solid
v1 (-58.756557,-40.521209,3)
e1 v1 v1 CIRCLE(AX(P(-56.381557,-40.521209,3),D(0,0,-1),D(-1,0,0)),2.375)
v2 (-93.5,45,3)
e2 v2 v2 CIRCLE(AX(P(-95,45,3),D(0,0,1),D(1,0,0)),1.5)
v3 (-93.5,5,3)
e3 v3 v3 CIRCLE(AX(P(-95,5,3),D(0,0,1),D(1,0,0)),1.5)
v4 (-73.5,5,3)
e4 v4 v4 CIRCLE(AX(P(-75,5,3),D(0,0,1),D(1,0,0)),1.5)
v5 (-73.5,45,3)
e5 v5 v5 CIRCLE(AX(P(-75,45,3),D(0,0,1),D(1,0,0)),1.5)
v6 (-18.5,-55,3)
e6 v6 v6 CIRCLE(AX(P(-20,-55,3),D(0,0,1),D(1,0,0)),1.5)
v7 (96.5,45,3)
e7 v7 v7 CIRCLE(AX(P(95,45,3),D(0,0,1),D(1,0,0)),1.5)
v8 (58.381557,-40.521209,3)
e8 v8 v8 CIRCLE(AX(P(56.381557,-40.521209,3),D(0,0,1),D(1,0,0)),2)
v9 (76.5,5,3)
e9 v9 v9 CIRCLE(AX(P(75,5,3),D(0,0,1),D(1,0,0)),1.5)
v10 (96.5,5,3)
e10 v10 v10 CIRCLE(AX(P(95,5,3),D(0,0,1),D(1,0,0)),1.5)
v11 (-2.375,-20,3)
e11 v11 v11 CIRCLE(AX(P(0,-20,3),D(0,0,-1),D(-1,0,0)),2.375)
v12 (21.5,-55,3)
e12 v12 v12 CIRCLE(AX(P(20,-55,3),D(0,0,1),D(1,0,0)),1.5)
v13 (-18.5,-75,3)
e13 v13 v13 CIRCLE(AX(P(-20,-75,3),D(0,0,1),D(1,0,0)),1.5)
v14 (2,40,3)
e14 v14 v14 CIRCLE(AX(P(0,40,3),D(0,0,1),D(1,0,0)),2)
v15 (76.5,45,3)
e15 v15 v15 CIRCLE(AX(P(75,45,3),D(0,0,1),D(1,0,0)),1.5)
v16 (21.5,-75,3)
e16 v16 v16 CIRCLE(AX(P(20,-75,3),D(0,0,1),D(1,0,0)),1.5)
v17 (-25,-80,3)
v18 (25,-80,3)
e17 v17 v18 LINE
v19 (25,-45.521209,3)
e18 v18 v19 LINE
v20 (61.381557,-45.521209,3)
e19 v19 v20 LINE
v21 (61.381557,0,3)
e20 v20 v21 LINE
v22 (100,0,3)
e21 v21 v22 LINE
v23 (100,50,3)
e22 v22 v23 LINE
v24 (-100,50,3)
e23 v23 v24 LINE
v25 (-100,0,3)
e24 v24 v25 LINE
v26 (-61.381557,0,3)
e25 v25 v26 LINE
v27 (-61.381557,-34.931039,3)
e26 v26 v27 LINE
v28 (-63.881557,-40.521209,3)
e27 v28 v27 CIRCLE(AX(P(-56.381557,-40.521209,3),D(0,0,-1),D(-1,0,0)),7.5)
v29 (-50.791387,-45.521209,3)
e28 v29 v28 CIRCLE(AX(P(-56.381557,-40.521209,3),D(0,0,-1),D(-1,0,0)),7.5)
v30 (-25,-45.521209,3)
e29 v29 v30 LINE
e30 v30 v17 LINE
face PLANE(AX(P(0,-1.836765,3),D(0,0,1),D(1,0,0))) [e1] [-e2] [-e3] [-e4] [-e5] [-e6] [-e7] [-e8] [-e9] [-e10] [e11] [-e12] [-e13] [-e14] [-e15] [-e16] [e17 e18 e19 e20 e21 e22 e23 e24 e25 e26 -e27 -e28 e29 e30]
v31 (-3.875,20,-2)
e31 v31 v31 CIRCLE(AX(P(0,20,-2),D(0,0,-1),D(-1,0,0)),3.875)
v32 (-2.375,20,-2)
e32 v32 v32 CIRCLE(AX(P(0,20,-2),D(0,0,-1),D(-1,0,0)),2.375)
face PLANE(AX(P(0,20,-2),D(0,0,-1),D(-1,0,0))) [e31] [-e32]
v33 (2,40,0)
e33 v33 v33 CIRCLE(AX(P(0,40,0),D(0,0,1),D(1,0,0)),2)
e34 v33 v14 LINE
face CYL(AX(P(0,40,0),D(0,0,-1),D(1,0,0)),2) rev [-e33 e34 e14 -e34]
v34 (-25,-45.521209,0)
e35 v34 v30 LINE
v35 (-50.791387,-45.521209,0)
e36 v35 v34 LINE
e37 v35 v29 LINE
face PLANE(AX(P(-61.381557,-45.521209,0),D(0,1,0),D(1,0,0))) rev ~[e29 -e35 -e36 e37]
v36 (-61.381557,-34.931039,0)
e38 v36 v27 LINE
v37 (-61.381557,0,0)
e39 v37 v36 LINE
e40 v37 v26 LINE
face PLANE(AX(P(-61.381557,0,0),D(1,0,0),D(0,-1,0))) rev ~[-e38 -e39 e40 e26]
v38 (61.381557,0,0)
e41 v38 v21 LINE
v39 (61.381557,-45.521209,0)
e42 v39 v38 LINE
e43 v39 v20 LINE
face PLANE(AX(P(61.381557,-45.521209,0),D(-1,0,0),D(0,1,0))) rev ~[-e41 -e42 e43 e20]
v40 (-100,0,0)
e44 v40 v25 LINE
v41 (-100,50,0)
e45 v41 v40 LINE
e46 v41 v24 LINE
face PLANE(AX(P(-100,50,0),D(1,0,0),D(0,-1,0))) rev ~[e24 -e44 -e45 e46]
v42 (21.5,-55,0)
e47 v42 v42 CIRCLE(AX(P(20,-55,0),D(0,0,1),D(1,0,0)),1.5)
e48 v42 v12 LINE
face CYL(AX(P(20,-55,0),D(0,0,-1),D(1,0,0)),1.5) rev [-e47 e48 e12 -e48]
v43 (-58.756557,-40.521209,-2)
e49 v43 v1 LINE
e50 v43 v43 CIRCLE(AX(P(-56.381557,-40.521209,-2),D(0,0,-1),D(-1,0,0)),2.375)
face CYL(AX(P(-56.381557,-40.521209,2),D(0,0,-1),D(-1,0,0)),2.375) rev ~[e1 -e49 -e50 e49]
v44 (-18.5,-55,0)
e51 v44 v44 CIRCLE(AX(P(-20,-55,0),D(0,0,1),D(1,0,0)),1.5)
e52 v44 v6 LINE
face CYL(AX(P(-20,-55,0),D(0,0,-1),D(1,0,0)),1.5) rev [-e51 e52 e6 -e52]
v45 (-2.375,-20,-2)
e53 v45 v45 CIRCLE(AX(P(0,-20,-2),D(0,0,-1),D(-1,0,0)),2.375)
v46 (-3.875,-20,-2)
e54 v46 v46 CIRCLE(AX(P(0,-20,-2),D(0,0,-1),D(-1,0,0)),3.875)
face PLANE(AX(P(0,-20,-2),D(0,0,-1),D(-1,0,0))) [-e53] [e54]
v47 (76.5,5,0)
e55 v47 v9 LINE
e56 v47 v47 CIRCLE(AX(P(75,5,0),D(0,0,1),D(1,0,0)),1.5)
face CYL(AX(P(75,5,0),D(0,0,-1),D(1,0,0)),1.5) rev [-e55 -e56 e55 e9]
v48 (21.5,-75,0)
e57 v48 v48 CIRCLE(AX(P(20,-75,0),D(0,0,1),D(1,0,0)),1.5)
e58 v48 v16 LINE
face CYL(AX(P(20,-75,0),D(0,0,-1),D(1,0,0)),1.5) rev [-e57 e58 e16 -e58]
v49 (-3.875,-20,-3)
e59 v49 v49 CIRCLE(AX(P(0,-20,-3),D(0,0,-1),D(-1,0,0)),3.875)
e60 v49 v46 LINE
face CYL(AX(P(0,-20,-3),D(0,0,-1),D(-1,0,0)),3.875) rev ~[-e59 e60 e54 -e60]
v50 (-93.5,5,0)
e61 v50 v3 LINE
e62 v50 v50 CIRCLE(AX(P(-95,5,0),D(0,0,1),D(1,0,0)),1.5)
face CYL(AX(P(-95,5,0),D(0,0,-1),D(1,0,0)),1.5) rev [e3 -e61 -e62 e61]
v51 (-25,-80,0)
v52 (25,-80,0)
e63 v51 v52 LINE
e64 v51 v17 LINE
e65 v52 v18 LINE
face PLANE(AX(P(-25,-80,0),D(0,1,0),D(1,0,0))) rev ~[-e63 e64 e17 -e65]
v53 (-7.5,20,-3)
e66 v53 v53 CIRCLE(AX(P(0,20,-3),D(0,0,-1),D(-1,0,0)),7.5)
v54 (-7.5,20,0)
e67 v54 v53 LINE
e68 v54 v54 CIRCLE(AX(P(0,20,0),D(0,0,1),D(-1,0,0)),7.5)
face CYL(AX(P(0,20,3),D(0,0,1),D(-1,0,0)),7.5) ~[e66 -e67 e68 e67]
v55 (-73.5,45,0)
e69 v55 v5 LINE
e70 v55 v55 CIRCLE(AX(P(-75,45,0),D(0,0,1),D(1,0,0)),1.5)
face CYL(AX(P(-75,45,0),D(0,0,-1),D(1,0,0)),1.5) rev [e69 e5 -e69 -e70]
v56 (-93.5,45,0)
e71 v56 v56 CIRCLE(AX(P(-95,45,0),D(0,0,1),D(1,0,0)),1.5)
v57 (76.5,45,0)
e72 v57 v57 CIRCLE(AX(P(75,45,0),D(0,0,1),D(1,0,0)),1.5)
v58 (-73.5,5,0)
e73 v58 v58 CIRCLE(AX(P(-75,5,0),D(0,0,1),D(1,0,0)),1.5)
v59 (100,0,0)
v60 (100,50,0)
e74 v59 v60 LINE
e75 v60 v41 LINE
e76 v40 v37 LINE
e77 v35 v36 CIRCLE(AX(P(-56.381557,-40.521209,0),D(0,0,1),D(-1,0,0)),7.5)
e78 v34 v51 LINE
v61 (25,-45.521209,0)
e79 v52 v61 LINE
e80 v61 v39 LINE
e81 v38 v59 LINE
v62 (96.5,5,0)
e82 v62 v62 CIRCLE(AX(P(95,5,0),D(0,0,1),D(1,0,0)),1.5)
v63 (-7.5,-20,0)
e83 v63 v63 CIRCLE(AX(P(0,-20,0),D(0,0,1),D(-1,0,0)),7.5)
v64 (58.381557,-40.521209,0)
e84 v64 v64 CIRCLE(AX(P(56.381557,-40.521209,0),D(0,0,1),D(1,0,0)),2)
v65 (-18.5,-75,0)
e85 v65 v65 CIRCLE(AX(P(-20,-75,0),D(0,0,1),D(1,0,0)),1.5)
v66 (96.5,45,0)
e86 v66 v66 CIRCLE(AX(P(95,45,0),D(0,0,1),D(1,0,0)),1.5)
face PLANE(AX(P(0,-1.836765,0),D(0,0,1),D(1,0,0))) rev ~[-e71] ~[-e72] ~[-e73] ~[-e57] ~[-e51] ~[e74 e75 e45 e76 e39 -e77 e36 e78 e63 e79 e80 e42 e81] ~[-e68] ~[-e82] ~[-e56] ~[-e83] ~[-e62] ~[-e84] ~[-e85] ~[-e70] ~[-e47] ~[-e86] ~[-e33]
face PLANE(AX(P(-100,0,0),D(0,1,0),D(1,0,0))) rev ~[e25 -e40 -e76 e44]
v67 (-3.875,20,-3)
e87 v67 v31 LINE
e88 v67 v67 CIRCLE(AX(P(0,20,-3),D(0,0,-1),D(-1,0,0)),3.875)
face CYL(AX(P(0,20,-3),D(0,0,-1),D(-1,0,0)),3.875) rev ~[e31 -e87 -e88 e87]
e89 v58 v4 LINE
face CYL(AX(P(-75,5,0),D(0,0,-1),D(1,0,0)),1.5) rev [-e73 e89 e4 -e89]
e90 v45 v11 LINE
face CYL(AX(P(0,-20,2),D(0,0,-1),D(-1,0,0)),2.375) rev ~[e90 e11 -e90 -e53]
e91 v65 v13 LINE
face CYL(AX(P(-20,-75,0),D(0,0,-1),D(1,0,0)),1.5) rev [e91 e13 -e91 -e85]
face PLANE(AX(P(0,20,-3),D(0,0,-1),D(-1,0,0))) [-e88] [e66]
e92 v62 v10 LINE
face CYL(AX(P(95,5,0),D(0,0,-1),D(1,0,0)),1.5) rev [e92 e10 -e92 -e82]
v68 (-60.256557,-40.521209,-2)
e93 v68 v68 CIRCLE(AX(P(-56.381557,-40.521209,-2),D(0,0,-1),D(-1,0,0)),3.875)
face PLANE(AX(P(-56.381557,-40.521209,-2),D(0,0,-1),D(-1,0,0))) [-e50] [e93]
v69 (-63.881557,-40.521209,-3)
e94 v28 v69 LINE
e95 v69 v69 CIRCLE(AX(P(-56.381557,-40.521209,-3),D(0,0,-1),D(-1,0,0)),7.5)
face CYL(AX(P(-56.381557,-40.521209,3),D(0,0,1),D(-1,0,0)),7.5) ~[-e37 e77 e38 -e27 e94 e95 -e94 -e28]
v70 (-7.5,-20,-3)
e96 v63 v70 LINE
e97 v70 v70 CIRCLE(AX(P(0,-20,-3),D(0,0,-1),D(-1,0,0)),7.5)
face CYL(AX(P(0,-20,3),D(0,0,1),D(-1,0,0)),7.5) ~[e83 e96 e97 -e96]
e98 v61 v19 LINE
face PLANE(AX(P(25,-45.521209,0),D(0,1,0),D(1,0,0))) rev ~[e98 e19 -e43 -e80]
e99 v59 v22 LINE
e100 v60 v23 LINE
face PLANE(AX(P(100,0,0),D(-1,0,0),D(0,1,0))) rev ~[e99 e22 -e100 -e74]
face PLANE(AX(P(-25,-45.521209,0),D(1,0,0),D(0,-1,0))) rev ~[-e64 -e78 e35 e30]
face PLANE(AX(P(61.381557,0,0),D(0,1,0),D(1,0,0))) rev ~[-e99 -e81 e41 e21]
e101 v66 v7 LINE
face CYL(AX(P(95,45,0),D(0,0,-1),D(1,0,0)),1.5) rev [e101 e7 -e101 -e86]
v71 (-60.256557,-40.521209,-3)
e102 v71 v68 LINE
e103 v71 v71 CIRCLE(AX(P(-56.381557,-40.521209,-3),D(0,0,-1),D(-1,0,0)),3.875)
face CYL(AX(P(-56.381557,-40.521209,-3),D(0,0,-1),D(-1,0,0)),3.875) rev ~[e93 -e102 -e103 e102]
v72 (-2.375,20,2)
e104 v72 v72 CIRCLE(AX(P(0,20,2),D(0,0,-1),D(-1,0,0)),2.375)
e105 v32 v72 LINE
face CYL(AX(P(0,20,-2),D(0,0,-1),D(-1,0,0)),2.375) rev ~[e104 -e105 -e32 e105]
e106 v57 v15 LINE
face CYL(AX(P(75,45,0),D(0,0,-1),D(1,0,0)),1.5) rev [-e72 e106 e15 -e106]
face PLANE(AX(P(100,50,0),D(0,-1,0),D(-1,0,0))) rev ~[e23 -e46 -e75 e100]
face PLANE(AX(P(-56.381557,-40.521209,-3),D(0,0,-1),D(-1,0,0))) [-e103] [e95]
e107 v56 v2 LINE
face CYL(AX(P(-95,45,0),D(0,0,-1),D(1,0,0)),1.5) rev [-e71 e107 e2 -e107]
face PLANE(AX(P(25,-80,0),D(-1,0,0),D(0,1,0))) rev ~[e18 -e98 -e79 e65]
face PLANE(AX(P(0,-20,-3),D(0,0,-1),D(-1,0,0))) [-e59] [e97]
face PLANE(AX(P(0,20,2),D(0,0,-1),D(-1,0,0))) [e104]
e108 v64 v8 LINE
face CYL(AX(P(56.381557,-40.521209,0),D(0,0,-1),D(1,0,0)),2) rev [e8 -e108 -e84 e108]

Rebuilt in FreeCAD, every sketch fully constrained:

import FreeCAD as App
import Part
import Sketcher
Q = App.Units.Quantity

doc = App.newDocument("Part")
body = doc.addObject("PartDesign::Body", "Body")

sketch1 = doc.addObject("Sketcher::SketchObject", "Sketch")
body.addObject(sketch1)
sketch1.AttachmentSupport = (doc.XY_Plane, [""])
sketch1.MapMode = "FlatFace"
sketch1.addGeometry([
    Part.LineSegment(App.Vector(-100, 50, 0), App.Vector(-100, 0, 0)),
    Part.LineSegment(App.Vector(-100, 0, 0), App.Vector(-61.4, 0, 0)),
    Part.LineSegment(App.Vector(-61.4, 0, 0), App.Vector(-61.4, -45.5, 0)),
    Part.LineSegment(App.Vector(-61.4, -45.5, 0), App.Vector(-25, -45.5, 0)),
    Part.LineSegment(App.Vector(-25, -45.5, 0), App.Vector(-25, -80, 0)),
    Part.LineSegment(App.Vector(-25, -80, 0), App.Vector(25, -80, 0)),
    Part.LineSegment(App.Vector(25, -80, 0), App.Vector(25, -45.5, 0)),
    Part.LineSegment(App.Vector(25, -45.5, 0), App.Vector(61.4, -45.5, 0)),
    Part.LineSegment(App.Vector(61.4, -45.5, 0), App.Vector(61.4, 0, 0)),
    Part.LineSegment(App.Vector(61.4, 0, 0), App.Vector(100, 0, 0)),
    Part.LineSegment(App.Vector(100, 0, 0), App.Vector(100, 50, 0)),
    Part.LineSegment(App.Vector(100, 50, 0), App.Vector(-100, 50, 0)),
    Part.Circle(App.Vector(-20, -75, 0), App.Vector(0, 0, 1), 1.5),
    Part.Circle(App.Vector(-20, -55, 0), App.Vector(0, 0, 1), 1.5),
    Part.Circle(App.Vector(-56.4, -40.5, 0), App.Vector(0, 0, 1), 2),
    Part.Circle(App.Vector(20, -75, 0), App.Vector(0, 0, 1), 1.5),
    Part.Circle(App.Vector(20, -55, 0), App.Vector(0, 0, 1), 1.5),
    Part.Circle(App.Vector(0, -20, 0), App.Vector(0, 0, 1), 2),
    Part.Circle(App.Vector(56.4, -40.5, 0), App.Vector(0, 0, 1), 2),
    Part.Circle(App.Vector(-95, 5, 0), App.Vector(0, 0, 1), 1.5),
    Part.Circle(App.Vector(-75, 5, 0), App.Vector(0, 0, 1), 1.5),
    Part.Circle(App.Vector(-95, 45, 0), App.Vector(0, 0, 1), 1.5),
    Part.Circle(App.Vector(-75, 45, 0), App.Vector(0, 0, 1), 1.5),
    Part.Circle(App.Vector(75, 5, 0), App.Vector(0, 0, 1), 1.5),
    Part.Circle(App.Vector(95, 5, 0), App.Vector(0, 0, 1), 1.5),
    Part.Circle(App.Vector(0, 20, 0), App.Vector(0, 0, 1), 2),
    Part.Circle(App.Vector(0, 40, 0), App.Vector(0, 0, 1), 2),
    Part.Circle(App.Vector(75, 45, 0), App.Vector(0, 0, 1), 1.5),
    Part.Circle(App.Vector(95, 45, 0), App.Vector(0, 0, 1), 1.5),
], False)
sketch1.addConstraint([
    Sketcher.Constraint("Coincident", 0, 2, 1, 1),
    Sketcher.Constraint("Coincident", 1, 2, 2, 1),
    Sketcher.Constraint("Coincident", 2, 2, 3, 1),
    Sketcher.Constraint("Coincident", 3, 2, 4, 1),
    Sketcher.Constraint("Coincident", 4, 2, 5, 1),
    Sketcher.Constraint("Coincident", 5, 2, 6, 1),
    Sketcher.Constraint("Coincident", 6, 2, 7, 1),
    Sketcher.Constraint("Coincident", 7, 2, 8, 1),
    Sketcher.Constraint("Coincident", 8, 2, 9, 1),
    Sketcher.Constraint("Coincident", 9, 2, 10, 1),
    Sketcher.Constraint("Coincident", 10, 2, 11, 1),
    Sketcher.Constraint("Coincident", 11, 2, 0, 1),
    Sketcher.Constraint("Vertical", 0),
    Sketcher.Constraint("Horizontal", 1),
    Sketcher.Constraint("Vertical", 2),
    Sketcher.Constraint("Horizontal", 3),
    Sketcher.Constraint("Vertical", 4),
    Sketcher.Constraint("Horizontal", 5),
    Sketcher.Constraint("Vertical", 6),
    Sketcher.Constraint("Horizontal", 7),
    Sketcher.Constraint("Vertical", 8),
    Sketcher.Constraint("Horizontal", 9),
    Sketcher.Constraint("Vertical", 10),
    Sketcher.Constraint("Horizontal", 11),
    Sketcher.Constraint("Equal", 12, 13),
    Sketcher.Constraint("Equal", 13, 15),
    Sketcher.Constraint("Equal", 15, 16),
    Sketcher.Constraint("Equal", 14, 17),
    Sketcher.Constraint("Equal", 17, 18),
    Sketcher.Constraint("Equal", 16, 19),
    Sketcher.Constraint("Equal", 19, 20),
    Sketcher.Constraint("Equal", 20, 21),
    Sketcher.Constraint("Equal", 21, 22),
    Sketcher.Constraint("Equal", 22, 23),
    Sketcher.Constraint("Equal", 23, 24),
    Sketcher.Constraint("Equal", 18, 25),
    Sketcher.Constraint("Equal", 25, 26),
    Sketcher.Constraint("Equal", 24, 27),
    Sketcher.Constraint("Equal", 27, 28),
    Sketcher.Constraint("Symmetric", 17, 3, 25, 3, -1, 1),
    Sketcher.Constraint("Symmetric", 1, 2, 8, 2, -1, 1),
    Sketcher.Constraint("Symmetric", 12, 3, 15, 3, -2),
    Sketcher.Constraint("Symmetric", 13, 3, 16, 3, -2),
    Sketcher.Constraint("Symmetric", 14, 3, 18, 3, -2),
    Sketcher.Constraint("Symmetric", 20, 3, 23, 3, -2),
    Sketcher.Constraint("Symmetric", 19, 3, 24, 3, -2),
    Sketcher.Constraint("Symmetric", 22, 3, 27, 3, -2),
    Sketcher.Constraint("Symmetric", 21, 3, 28, 3, -2),
    Sketcher.Constraint("Symmetric", 3, 2, 6, 2, -2),
    Sketcher.Constraint("Symmetric", 0, 2, 9, 2, -2),
    Sketcher.Constraint("PointOnObject", 17, 3, -2),
    Sketcher.Constraint("PointOnObject", 26, 3, -2),
    Sketcher.Constraint("Horizontal", 19, 3, 20, 3),
    Sketcher.Constraint("Horizontal", 21, 3, 22, 3),
    Sketcher.Constraint("Vertical", 12, 3, 13, 3),
    Sketcher.Constraint("Vertical", 19, 3, 21, 3),
    Sketcher.Constraint("Vertical", 20, 3, 22, 3),
    Sketcher.Constraint("Equal", 5, 0),
    Sketcher.Constraint("Diameter", 12, Q("3 mm")),
    Sketcher.Constraint("Diameter", 14, Q("4 mm")),
    Sketcher.Constraint("DistanceX", 5, 1, 5, 2, Q("50 mm")),
    Sketcher.Constraint("DistanceX", 11, 2, 11, 1, Q("200 mm")),
    Sketcher.Constraint("DistanceX", 12, 3, -1, 1, Q("20 mm")),
    Sketcher.Constraint("DistanceY", 12, 3, -1, 1, Q("75 mm")),
    Sketcher.Constraint("DistanceY", 13, 3, -1, 1, Q("55 mm")),
    Sketcher.Constraint("DistanceY", 17, 3, -1, 1, Q("20 mm")),
    Sketcher.Constraint("DistanceX", 19, 3, -1, 1, Q("95 mm")),
    Sketcher.Constraint("DistanceY", -1, 1, 19, 3, Q("5 mm")),
    Sketcher.Constraint("DistanceX", 20, 3, -1, 1, Q("75 mm")),
    Sketcher.Constraint("DistanceY", -1, 1, 21, 3, Q("45 mm")),
    Sketcher.Constraint("DistanceY", -1, 1, 26, 3, Q("40 mm")),
    Sketcher.Constraint("DistanceY", 4, 2, -1, 1, Q("80 mm")),
    Sketcher.Constraint("DistanceX", 1, 2, 14, 3, Q("5 mm")),
    Sketcher.Constraint("DistanceY", 2, 2, 14, 3, Q("5 mm")),
    Sketcher.Constraint("DistanceY", 2, 2, 2, 1, Q("45.521209 mm")),
    Sketcher.Constraint("DistanceX", 1, 1, 1, 2, Q("38.618443 mm")),
])
pad1 = doc.addObject("PartDesign::Pad", "Pad")
body.addObject(pad1)
pad1.Profile = sketch1
pad1.Length = 3

sketch2 = doc.addObject("Sketcher::SketchObject", "Sketch001")
body.addObject(sketch2)
sketch2.AttachmentSupport = (doc.XY_Plane, [""])
sketch2.MapMode = "FlatFace"
sketch2.AttachmentOffset = App.Placement(App.Vector(0, 0, 3), App.Rotation())
sketch2.addGeometry([
    Part.Circle(App.Vector(0, 20, 0), App.Vector(0, 0, 1), 8),
    Part.Circle(App.Vector(-56, -41, 0), App.Vector(0, 0, 1), 8),
    Part.Circle(App.Vector(0, -20, 0), App.Vector(0, 0, 1), 8),
], False)
sketch2.addConstraint([
    Sketcher.Constraint("Equal", 0, 1),
    Sketcher.Constraint("Equal", 1, 2),
    Sketcher.Constraint("Symmetric", 0, 3, 2, 3, -1, 1),
    Sketcher.Constraint("PointOnObject", 0, 3, -2),
    Sketcher.Constraint("Diameter", 0, Q("15 mm")),
    Sketcher.Constraint("DistanceY", -1, 1, 0, 3, Q("20 mm")),
    Sketcher.Constraint("DistanceY", 1, 3, -1, 1, Q("40.521209 mm")),
    Sketcher.Constraint("DistanceX", 1, 3, -1, 1, Q("56.381557 mm")),
])
pad2 = doc.addObject("PartDesign::Pad", "Pad001")
body.addObject(pad2)
pad2.Profile = sketch2
pad2.Length = 6
pad2.Reversed = True

sketch3 = doc.addObject("Sketcher::SketchObject", "Sketch002")
body.addObject(sketch3)
sketch3.AttachmentSupport = (doc.XY_Plane, [""])
sketch3.MapMode = "FlatFace"
sketch3.AttachmentOffset = App.Placement(App.Vector(0, 0, -3), App.Rotation())
sketch3.addGeometry([
    Part.Circle(App.Vector(-56.4, -40.5, 0), App.Vector(0, 0, 1), 3.9),
    Part.Circle(App.Vector(0, 20, 0), App.Vector(0, 0, 1), 3.9),
    Part.Circle(App.Vector(0, -20, 0), App.Vector(0, 0, 1), 3.9),
], False)
sketch3.addConstraint([
    Sketcher.Constraint("Equal", 0, 1),
    Sketcher.Constraint("Equal", 1, 2),
    Sketcher.Constraint("Symmetric", 1, 3, 2, 3, -1, 1),
    Sketcher.Constraint("PointOnObject", 1, 3, -2),
    Sketcher.Constraint("Diameter", 0, Q("7.75 mm")),
    Sketcher.Constraint("DistanceY", -1, 1, 1, 3, Q("20 mm")),
    Sketcher.Constraint("DistanceY", 0, 3, -1, 1, Q("40.521209 mm")),
    Sketcher.Constraint("DistanceX", 0, 3, -1, 1, Q("56.381557 mm")),
])
pocket1 = doc.addObject("PartDesign::Pocket", "Pocket")
body.addObject(pocket1)
pocket1.Profile = sketch3
pocket1.Length = 1
pocket1.Reversed = True

sketch4 = doc.addObject("Sketcher::SketchObject", "Sketch003")
body.addObject(sketch4)
sketch4.AttachmentSupport = (doc.XY_Plane, [""])
sketch4.MapMode = "FlatFace"
sketch4.AttachmentOffset = App.Placement(App.Vector(0, 0, -2), App.Rotation())
sketch4.addGeometry([
    Part.Circle(App.Vector(-56.4, -40.5, 0), App.Vector(0, 0, 1), 2.4),
    Part.Circle(App.Vector(0, 20, 0), App.Vector(0, 0, 1), 2.4),
    Part.Circle(App.Vector(0, -20, 0), App.Vector(0, 0, 1), 2.4),
], False)
sketch4.addConstraint([
    Sketcher.Constraint("Equal", 0, 1),
    Sketcher.Constraint("Equal", 1, 2),
    Sketcher.Constraint("Symmetric", 1, 3, 2, 3, -1, 1),
    Sketcher.Constraint("PointOnObject", 1, 3, -2),
    Sketcher.Constraint("Diameter", 0, Q("4.75 mm")),
    Sketcher.Constraint("DistanceY", -1, 1, 1, 3, Q("20 mm")),
    Sketcher.Constraint("DistanceY", 0, 3, -1, 1, Q("40.521209 mm")),
    Sketcher.Constraint("DistanceX", 0, 3, -1, 1, Q("56.381557 mm")),
])
pocket2 = doc.addObject("PartDesign::Pocket", "Pocket001")
body.addObject(pocket2)
pocket2.Profile = sketch4
pocket2.Length = 4
pocket2.Reversed = True

sketch5 = doc.addObject("Sketcher::SketchObject", "Sketch004")
body.addObject(sketch5)
sketch5.AttachmentSupport = (doc.XY_Plane, [""])
sketch5.MapMode = "FlatFace"
sketch5.AttachmentOffset = App.Placement(App.Vector(0, 0, 2), App.Rotation())
sketch5.addGeometry(Part.Circle(App.Vector(-56.4, -40.5, 0), App.Vector(0, 0, 1), 2.4), False)
sketch5.addConstraint([
    Sketcher.Constraint("Diameter", 0, Q("4.75 mm")),
    Sketcher.Constraint("DistanceY", 0, 3, -1, 1, Q("40.521209 mm")),
    Sketcher.Constraint("DistanceX", 0, 3, -1, 1, Q("56.381557 mm")),
])
pocket3 = doc.addObject("PartDesign::Pocket", "Pocket002")
body.addObject(pocket3)
pocket3.Profile = sketch5
pocket3.Type = "UpToFirst"
pocket3.Reversed = True

sketch6 = doc.addObject("Sketcher::SketchObject", "Sketch005")
body.addObject(sketch6)
sketch6.AttachmentSupport = (doc.XY_Plane, [""])
sketch6.MapMode = "FlatFace"
sketch6.AttachmentOffset = App.Placement(App.Vector(0, 0, 2), App.Rotation())
sketch6.addGeometry(Part.Circle(App.Vector(0, -20, 0), App.Vector(0, 0, 1), 2.4), False)
sketch6.addConstraint([
    Sketcher.Constraint("PointOnObject", 0, 3, -2),
    Sketcher.Constraint("Diameter", 0, Q("4.75 mm")),
    Sketcher.Constraint("DistanceY", 0, 3, -1, 1, Q("20 mm")),
])
pocket4 = doc.addObject("PartDesign::Pocket", "Pocket003")
body.addObject(pocket4)
pocket4.Profile = sketch6
pocket4.Type = "UpToFirst"
pocket4.Reversed = True

doc.recompute()
